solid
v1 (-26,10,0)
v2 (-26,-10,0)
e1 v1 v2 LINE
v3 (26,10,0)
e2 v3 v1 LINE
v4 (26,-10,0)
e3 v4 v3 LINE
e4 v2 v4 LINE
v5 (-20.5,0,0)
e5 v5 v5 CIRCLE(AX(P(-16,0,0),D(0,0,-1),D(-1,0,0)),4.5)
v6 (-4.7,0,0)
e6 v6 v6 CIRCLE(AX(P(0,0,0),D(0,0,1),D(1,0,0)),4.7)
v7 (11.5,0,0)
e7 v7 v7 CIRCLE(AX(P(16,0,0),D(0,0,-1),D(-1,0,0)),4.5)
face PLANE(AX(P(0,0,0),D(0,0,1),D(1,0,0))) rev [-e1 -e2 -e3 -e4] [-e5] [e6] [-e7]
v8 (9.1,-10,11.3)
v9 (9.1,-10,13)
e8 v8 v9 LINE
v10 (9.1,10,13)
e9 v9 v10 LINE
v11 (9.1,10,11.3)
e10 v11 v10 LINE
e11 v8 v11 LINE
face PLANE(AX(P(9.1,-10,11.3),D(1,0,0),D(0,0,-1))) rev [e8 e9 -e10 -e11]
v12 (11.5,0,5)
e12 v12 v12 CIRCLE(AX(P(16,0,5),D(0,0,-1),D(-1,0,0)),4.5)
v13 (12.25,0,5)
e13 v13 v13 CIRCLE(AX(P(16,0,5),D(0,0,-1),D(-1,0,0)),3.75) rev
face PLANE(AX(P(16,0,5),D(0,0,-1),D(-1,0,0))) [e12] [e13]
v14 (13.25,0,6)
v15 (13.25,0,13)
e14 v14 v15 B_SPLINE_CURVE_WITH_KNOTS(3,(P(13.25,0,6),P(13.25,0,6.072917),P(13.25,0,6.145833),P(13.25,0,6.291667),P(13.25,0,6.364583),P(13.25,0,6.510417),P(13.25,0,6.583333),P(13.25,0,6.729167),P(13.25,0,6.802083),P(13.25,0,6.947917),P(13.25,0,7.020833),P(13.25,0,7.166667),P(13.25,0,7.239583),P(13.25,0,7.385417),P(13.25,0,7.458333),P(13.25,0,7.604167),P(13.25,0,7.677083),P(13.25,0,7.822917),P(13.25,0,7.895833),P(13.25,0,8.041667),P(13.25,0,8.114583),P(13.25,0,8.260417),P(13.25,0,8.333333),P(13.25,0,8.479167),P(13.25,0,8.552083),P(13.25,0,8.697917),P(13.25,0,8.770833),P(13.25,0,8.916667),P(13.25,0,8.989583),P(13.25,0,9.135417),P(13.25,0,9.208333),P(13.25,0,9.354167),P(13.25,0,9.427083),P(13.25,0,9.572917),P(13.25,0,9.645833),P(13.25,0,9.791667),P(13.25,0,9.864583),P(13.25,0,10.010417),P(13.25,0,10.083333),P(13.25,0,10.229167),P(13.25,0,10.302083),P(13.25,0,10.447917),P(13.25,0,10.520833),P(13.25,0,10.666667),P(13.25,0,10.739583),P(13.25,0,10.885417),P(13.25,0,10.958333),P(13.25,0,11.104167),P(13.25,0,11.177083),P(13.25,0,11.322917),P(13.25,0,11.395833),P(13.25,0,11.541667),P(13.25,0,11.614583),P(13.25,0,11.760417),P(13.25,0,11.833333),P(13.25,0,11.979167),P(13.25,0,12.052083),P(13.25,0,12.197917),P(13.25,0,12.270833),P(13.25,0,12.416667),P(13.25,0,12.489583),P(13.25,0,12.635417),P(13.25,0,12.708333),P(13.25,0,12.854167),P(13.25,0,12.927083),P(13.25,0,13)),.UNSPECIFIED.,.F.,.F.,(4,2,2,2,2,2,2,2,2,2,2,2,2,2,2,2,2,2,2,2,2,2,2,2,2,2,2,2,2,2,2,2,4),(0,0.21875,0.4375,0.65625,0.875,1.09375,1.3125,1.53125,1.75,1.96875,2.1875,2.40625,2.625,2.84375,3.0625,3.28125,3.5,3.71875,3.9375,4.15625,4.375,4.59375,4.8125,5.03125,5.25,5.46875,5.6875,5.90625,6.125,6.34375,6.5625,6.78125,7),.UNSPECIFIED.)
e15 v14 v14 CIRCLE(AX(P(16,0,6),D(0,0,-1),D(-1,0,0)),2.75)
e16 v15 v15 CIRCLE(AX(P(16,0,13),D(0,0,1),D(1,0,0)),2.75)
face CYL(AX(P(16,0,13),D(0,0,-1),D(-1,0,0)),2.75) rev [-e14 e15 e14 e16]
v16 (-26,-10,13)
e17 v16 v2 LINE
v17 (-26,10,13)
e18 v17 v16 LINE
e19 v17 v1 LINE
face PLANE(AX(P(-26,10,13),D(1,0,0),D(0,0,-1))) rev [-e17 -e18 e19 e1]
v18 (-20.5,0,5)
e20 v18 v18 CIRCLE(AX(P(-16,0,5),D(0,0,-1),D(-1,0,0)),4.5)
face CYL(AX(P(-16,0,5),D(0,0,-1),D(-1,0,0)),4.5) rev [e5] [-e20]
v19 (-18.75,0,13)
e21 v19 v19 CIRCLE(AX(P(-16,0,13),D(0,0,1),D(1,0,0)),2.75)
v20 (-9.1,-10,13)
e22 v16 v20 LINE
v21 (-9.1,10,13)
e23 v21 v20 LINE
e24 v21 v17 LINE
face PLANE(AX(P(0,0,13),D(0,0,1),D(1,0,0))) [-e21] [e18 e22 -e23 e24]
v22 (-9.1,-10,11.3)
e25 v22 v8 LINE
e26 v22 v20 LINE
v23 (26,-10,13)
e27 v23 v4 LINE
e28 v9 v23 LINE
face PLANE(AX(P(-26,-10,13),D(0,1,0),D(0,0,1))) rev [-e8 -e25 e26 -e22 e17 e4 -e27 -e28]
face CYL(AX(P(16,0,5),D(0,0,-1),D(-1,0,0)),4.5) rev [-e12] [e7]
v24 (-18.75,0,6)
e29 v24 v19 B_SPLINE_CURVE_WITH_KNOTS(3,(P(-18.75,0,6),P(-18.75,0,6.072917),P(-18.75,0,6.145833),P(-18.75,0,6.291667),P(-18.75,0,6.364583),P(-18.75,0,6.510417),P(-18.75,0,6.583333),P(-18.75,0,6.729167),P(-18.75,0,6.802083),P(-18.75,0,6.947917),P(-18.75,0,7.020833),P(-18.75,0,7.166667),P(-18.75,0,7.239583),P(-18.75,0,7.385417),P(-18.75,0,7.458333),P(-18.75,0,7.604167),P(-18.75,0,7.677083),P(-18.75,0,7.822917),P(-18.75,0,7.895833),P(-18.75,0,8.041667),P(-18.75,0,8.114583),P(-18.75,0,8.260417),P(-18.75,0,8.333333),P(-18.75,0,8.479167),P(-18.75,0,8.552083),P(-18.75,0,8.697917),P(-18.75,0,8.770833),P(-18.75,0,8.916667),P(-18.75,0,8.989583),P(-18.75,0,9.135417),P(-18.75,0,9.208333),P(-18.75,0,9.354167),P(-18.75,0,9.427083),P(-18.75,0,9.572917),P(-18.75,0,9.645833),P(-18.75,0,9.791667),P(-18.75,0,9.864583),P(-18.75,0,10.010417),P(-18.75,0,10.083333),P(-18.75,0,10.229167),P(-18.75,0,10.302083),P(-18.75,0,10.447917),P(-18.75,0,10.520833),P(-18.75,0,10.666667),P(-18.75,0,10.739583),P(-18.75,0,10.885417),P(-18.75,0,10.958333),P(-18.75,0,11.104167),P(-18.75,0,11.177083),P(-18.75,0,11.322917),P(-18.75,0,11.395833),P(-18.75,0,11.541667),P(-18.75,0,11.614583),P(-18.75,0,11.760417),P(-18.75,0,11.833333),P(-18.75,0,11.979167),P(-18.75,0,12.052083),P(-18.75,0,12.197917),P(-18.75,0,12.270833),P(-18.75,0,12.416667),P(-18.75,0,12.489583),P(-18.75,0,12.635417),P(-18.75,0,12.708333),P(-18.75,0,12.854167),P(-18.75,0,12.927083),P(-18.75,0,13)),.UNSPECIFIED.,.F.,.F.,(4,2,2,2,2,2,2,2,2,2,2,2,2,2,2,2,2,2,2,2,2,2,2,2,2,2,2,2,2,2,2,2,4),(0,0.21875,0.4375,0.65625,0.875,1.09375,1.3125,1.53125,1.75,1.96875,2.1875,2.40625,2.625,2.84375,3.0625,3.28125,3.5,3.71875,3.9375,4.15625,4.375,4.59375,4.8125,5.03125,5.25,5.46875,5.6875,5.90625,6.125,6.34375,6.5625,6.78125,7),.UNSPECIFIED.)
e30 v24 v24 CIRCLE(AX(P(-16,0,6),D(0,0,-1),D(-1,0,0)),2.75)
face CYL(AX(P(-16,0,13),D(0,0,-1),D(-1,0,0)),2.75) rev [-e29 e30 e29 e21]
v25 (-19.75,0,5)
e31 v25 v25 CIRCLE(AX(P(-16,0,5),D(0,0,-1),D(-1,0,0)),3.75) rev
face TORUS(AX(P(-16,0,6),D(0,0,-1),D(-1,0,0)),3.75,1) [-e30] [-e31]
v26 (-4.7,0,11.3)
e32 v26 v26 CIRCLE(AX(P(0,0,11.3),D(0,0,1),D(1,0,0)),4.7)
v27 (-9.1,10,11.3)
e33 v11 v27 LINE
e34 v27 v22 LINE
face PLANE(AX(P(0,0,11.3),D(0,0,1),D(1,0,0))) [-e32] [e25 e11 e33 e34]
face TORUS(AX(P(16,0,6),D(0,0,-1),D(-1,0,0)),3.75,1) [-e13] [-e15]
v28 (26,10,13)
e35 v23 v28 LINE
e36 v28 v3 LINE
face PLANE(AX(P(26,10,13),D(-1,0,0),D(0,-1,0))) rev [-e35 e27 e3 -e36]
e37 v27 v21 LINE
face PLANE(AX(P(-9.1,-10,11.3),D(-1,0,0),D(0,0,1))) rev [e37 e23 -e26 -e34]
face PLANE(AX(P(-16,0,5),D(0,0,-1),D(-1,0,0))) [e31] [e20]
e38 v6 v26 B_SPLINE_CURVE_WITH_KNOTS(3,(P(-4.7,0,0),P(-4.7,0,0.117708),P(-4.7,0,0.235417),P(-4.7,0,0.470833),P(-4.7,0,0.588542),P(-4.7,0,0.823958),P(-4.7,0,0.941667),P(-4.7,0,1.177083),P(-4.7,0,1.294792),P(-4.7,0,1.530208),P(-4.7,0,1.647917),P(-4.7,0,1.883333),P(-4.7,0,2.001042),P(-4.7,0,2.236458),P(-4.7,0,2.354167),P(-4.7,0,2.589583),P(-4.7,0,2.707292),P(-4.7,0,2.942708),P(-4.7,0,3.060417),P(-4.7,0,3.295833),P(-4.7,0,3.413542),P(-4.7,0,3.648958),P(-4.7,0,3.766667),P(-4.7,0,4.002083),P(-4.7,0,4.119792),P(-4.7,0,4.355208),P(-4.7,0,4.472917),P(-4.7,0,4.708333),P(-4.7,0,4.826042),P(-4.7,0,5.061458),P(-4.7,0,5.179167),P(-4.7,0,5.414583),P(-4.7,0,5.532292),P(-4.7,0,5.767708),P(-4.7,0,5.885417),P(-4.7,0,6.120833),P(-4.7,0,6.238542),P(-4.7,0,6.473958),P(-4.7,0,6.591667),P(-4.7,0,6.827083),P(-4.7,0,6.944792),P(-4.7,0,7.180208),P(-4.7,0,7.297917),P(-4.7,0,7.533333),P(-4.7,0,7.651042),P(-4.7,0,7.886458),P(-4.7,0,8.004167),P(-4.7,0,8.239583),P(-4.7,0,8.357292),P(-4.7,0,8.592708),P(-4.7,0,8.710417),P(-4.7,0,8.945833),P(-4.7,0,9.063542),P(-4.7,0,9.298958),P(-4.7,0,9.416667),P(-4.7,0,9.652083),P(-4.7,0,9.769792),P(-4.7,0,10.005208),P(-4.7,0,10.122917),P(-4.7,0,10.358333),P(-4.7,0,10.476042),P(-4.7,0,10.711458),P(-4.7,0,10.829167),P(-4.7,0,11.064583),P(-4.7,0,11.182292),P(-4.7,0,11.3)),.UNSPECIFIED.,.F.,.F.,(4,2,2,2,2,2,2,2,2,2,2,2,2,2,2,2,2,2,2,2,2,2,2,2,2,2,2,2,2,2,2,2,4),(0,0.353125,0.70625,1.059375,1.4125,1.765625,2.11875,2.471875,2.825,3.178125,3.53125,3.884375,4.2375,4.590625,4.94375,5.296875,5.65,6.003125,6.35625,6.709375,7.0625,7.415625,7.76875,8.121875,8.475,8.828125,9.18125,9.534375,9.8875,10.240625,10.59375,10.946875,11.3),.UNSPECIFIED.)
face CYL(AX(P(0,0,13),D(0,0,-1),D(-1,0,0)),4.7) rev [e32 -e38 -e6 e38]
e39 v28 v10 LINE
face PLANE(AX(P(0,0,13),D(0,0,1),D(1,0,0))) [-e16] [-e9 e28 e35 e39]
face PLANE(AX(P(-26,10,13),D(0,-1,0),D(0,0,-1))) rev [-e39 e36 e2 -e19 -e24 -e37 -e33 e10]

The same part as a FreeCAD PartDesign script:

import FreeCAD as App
import Part
import Sketcher


def edges_at(feature, points):
    """Names of the edges that pass closest to the given points."""
    edges = feature.Shape.Edges
    near = lambda p: min(range(len(edges)), key=lambda i: edges[i].distToShape(Part.Vertex(*p))[0])
    return sorted({f"Edge{near(p) + 1}" for p in points})


def add_polygon(sketch, points):
    """Adds a closed chain of lines whose ends are joined by coincident constraints."""
    first, n = sketch.GeometryCount, len(points)
    for a, b in zip(points, points[1:] + points[:1]):
        sketch.addGeometry(Part.LineSegment(App.Vector(*a, 0), App.Vector(*b, 0)), False)
    for i in range(n):
        sketch.addConstraint(Sketcher.Constraint("Coincident", first + i, 2, first + (i + 1) % n, 1))

doc = App.newDocument("Part")
body = doc.addObject("PartDesign::Body", "Body")

# Sketch on XY plane
sketch1 = body.newObject("Sketcher::SketchObject", "Sketch")
sketch1.AttachmentSupport = (doc.getObject("XY_Plane"), [""])
sketch1.MapMode = "FlatFace"
add_polygon(sketch1, [(-26, 10), (-26, -10), (26, -10), (26, 10)])  # lines 0-3
sketch1.addGeometry(Part.Circle(App.Vector(-16, 0, 0), App.Vector(0, 0, 1), 2.8), False)  # 4
sketch1.addGeometry(Part.Circle(App.Vector(0, 0, 0), App.Vector(0, 0, 1), 4.7), False)  # 5
sketch1.addGeometry(Part.Circle(App.Vector(16, 0, 0), App.Vector(0, 0, 1), 2.8), False)  # 6
sketch1.addConstraint(Sketcher.Constraint("Vertical", 0))
sketch1.addConstraint(Sketcher.Constraint("Horizontal", 1))
sketch1.addConstraint(Sketcher.Constraint("Vertical", 2))
sketch1.addConstraint(Sketcher.Constraint("Horizontal", 3))
sketch1.addConstraint(Sketcher.Constraint("Coincident", 5, 3, -1, 1))
sketch1.addConstraint(Sketcher.Constraint("Equal", 4, 6))
sketch1.addConstraint(Sketcher.Constraint("Symmetric", 4, 3, 6, 3, -1, 1))
sketch1.addConstraint(Sketcher.Constraint("Symmetric", 0, 2, 2, 2, -1, 1))
sketch1.addConstraint(Sketcher.Constraint("PointOnObject", 4, 3, -1))
sketch1.addConstraint(Sketcher.Constraint("Diameter", 4, 5.5))
sketch1.addConstraint(Sketcher.Constraint("Diameter", 5, 9.4))
sketch1.addConstraint(Sketcher.Constraint("DistanceX", 1, 1, 1, 2, 52.0))
sketch1.addConstraint(Sketcher.Constraint("DistanceY", 0, 2, 0, 1, 20.0))
sketch1.addConstraint(Sketcher.Constraint("DistanceX", 4, 3, -1, 1, 16.0))
pad1 = body.newObject("PartDesign::Pad", "Pad")
pad1.Profile = sketch1
pad1.Length = 13

# Sketch on XY plane
sketch2 = body.newObject("Sketcher::SketchObject", "Sketch001")
sketch2.AttachmentSupport = (doc.getObject("XY_Plane"), [""])
sketch2.MapMode = "FlatFace"
sketch2.addGeometry(Part.Circle(App.Vector(16, 0, 0), App.Vector(0, 0, 1), 4.5), False)
sketch2.addGeometry(Part.Circle(App.Vector(-16, 0, 0), App.Vector(0, 0, 1), 4.5), False)
sketch2.addConstraint(Sketcher.Constraint("Equal", 0, 1))
sketch2.addConstraint(Sketcher.Constraint("Symmetric", 0, 3, 1, 3, -1, 1))
sketch2.addConstraint(Sketcher.Constraint("PointOnObject", 0, 3, -1))
sketch2.addConstraint(Sketcher.Constraint("Diameter", 0, 9.0))
sketch2.addConstraint(Sketcher.Constraint("DistanceX", -1, 1, 0, 3, 16.0))
pocket1 = body.newObject("PartDesign::Pocket", "Pocket")
pocket1.Profile = sketch2
pocket1.Length = 5
pocket1.Reversed = True

# Sketch on XY plane
sketch3 = body.newObject("Sketcher::SketchObject", "Sketch002")
sketch3.AttachmentSupport = (doc.getObject("XY_Plane"), [""])
sketch3.MapMode = "FlatFace"
sketch3.AttachmentOffset = App.Placement(App.Vector(0, 0, 13), App.Rotation())
add_polygon(sketch3, [(-9, 10), (-9, -10), (9, -10), (9, 10)])  # lines 0-3
sketch3.addConstraint(Sketcher.Constraint("Vertical", 0))
sketch3.addConstraint(Sketcher.Constraint("Horizontal", 1))
sketch3.addConstraint(Sketcher.Constraint("Vertical", 2))
sketch3.addConstraint(Sketcher.Constraint("Horizontal", 3))
sketch3.addConstraint(Sketcher.Constraint("Symmetric", 0, 2, 2, 2, -1, 1))
sketch3.addConstraint(Sketcher.Constraint("DistanceY", 0, 2, 0, 1, 20.0))
sketch3.addConstraint(Sketcher.Constraint("DistanceX", 1, 1, 1, 2, 18.2))
pocket2 = body.newObject("PartDesign::Pocket", "Pocket001")
pocket2.Profile = sketch3
pocket2.Length = 1.7
doc.recompute()

fillet = body.newObject("PartDesign::Fillet", "Fillet")
fillet.Base = (pocket2, edges_at(pocket2, [(18.75, 0, 5), (-13.25, 0, 5)]))
fillet.Radius = 1

doc.recompute()
